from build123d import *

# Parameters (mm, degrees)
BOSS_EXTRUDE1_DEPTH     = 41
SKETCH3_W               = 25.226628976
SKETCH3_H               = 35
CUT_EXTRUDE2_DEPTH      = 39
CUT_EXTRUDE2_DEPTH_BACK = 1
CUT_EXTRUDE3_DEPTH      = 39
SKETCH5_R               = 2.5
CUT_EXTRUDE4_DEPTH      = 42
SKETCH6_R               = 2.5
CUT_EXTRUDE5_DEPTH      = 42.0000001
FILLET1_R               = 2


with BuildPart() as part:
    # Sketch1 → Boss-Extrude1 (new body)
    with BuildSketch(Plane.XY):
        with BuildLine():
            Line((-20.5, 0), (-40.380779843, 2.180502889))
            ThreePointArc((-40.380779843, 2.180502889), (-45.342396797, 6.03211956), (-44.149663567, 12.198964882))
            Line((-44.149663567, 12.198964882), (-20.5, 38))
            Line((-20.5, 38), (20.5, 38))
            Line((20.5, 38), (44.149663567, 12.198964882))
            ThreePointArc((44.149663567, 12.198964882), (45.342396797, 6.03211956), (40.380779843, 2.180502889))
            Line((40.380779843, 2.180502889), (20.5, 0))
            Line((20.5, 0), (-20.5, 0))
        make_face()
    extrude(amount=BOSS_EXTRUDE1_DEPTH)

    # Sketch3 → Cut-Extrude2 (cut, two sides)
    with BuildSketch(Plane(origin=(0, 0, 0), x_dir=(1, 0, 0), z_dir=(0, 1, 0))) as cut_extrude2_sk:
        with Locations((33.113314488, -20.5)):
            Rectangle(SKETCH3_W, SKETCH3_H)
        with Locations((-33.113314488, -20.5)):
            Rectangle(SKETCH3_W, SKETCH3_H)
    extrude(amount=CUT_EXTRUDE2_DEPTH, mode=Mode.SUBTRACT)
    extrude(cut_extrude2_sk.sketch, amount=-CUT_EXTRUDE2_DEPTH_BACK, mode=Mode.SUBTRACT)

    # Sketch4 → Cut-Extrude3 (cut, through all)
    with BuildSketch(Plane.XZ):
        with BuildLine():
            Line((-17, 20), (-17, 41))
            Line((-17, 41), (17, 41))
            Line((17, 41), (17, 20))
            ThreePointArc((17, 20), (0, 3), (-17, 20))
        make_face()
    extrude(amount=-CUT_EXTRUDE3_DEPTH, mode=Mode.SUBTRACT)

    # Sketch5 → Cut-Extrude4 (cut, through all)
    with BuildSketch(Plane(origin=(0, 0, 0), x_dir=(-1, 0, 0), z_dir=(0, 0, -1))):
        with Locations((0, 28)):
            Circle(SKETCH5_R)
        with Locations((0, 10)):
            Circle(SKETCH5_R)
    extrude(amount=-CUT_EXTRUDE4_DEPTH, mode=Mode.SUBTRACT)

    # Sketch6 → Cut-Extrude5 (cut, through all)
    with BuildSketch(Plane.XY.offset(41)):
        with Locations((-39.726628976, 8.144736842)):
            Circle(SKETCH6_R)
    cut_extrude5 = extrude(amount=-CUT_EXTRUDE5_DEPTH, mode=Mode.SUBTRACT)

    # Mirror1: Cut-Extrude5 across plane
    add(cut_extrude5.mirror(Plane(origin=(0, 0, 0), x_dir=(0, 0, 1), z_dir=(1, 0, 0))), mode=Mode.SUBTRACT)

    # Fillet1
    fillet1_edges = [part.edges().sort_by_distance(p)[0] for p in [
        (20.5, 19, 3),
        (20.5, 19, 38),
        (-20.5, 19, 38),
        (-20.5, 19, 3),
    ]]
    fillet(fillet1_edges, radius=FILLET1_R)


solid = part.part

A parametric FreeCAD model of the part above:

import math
import FreeCAD as App
import Part
import Sketcher
Q = App.Units.Quantity


def edges_at(feature, points):
    """Names of the edges that pass closest to the given points."""
    edges = feature.Shape.Edges
    near = lambda p: min(range(len(edges)), key=lambda i: edges[i].distToShape(Part.Vertex(*p))[0])
    return sorted({f"Edge{near(p) + 1}" for p in points})

doc = App.newDocument("Part")
body = doc.addObject("PartDesign::Body", "Body")

# Sketch on XY plane
sketch1 = body.newObject("Sketcher::SketchObject", "Sketch")
sketch1.AttachmentSupport = (doc.getObject("XY_Plane"), [""])
sketch1.MapMode = "FlatFace"
sketch1.addGeometry(Part.LineSegment(App.Vector(-40, 2, 0), App.Vector(-20, 0, 0)), False)
sketch1.addGeometry(Part.LineSegment(App.Vector(-20, 0, 0), App.Vector(20, 0, 0)), False)
sketch1.addGeometry(Part.LineSegment(App.Vector(20, 0, 0), App.Vector(40, 2, 0)), False)
sketch1.addGeometry(Part.ArcOfCircle(Part.Circle(App.Vector(40, 8, 0), App.Vector(0, 0, 1), 6), math.radians(-84), math.radians(43)), False)
sketch1.addGeometry(Part.LineSegment(App.Vector(44, 12, 0), App.Vector(20, 38, 0)), False)
sketch1.addGeometry(Part.LineSegment(App.Vector(20, 38, 0), App.Vector(-20, 38, 0)), False)
sketch1.addGeometry(Part.LineSegment(App.Vector(-20, 38, 0), App.Vector(-44, 12, 0)), False)
sketch1.addGeometry(Part.ArcOfCircle(Part.Circle(App.Vector(-40, 8, 0), App.Vector(0, 0, 1), 6), math.radians(137), math.radians(264)), False)
sketch1.addConstraint(Sketcher.Constraint("Coincident", 0, 2, 1, 1))
sketch1.addConstraint(Sketcher.Constraint("Coincident", 1, 2, 2, 1))
sketch1.addConstraint(Sketcher.Constraint("Tangent", 2, 2, 3, 1))
sketch1.addConstraint(Sketcher.Constraint("Tangent", 3, 2, 4, 1))
sketch1.addConstraint(Sketcher.Constraint("Coincident", 4, 2, 5, 1))
sketch1.addConstraint(Sketcher.Constraint("Coincident", 5, 2, 6, 1))
sketch1.addConstraint(Sketcher.Constraint("Tangent", 6, 2, 7, 1))
sketch1.addConstraint(Sketcher.Constraint("Tangent", 7, 2, 0, 1))
sketch1.addConstraint(Sketcher.Constraint("Horizontal", 1))
sketch1.addConstraint(Sketcher.Constraint("Horizontal", 5))
sketch1.addConstraint(Sketcher.Constraint("Equal", 3, 7))
sketch1.addConstraint(Sketcher.Constraint("Symmetric", 0, 2, 1, 2, -1, 1))
sketch1.addConstraint(Sketcher.Constraint("Symmetric", 3, 3, 7, 3, -2))
sketch1.addConstraint(Sketcher.Constraint("Horizontal", 3, 2, 6, 2))
sketch1.addConstraint(Sketcher.Constraint("Vertical", 1, 2, 4, 2))
sketch1.addConstraint(Sketcher.Constraint("Radius", 3, Q("6 mm")))
sketch1.addConstraint(Sketcher.Constraint("DistanceX", 1, 1, 1, 2, Q("41 mm")))
sketch1.addConstraint(Sketcher.Constraint("Distance", 0, Q("20 mm")))
sketch1.addConstraint(Sketcher.Constraint("Distance", 4, Q("35 mm")))
sketch1.addConstraint(Sketcher.Constraint("DistanceY", -1, 1, 4, 2, Q("38 mm")))
pad1 = body.newObject("PartDesign::Pad", "Pad")
pad1.Profile = sketch1
pad1.Length = 41

# Sketch on XZ plane
sketch2 = body.newObject("Sketcher::SketchObject", "Sketch001")
sketch2.AttachmentSupport = (doc.getObject("XZ_Plane"), [""])
sketch2.MapMode = "FlatFace"
sketch2.addGeometry(Part.LineSegment(App.Vector(20, 3, 0), App.Vector(20, 38, 0)), False)
sketch2.addGeometry(Part.LineSegment(App.Vector(20, 38, 0), App.Vector(46, 38, 0)), False)
sketch2.addGeometry(Part.LineSegment(App.Vector(46, 38, 0), App.Vector(46, 3, 0)), False)
sketch2.addGeometry(Part.LineSegment(App.Vector(46, 3, 0), App.Vector(20, 3, 0)), False)
sketch2.addGeometry(Part.LineSegment(App.Vector(-46, 3, 0), App.Vector(-46, 38, 0)), False)
sketch2.addGeometry(Part.LineSegment(App.Vector(-46, 38, 0), App.Vector(-20, 38, 0)), False)
sketch2.addGeometry(Part.LineSegment(App.Vector(-20, 38, 0), App.Vector(-20, 3, 0)), False)
sketch2.addGeometry(Part.LineSegment(App.Vector(-20, 3, 0), App.Vector(-46, 3, 0)), False)
sketch2.addConstraint(Sketcher.Constraint("Coincident", 0, 2, 1, 1))
sketch2.addConstraint(Sketcher.Constraint("Coincident", 1, 2, 2, 1))
sketch2.addConstraint(Sketcher.Constraint("Coincident", 2, 2, 3, 1))
sketch2.addConstraint(Sketcher.Constraint("Coincident", 3, 2, 0, 1))
sketch2.addConstraint(Sketcher.Constraint("Coincident", 4, 2, 5, 1))
sketch2.addConstraint(Sketcher.Constraint("Coincident", 5, 2, 6, 1))
sketch2.addConstraint(Sketcher.Constraint("Coincident", 6, 2, 7, 1))
sketch2.addConstraint(Sketcher.Constraint("Coincident", 7, 2, 4, 1))
sketch2.addConstraint(Sketcher.Constraint("Vertical", 0))
sketch2.addConstraint(Sketcher.Constraint("Horizontal", 1))
sketch2.addConstraint(Sketcher.Constraint("Vertical", 2))
sketch2.addConstraint(Sketcher.Constraint("Horizontal", 3))
sketch2.addConstraint(Sketcher.Constraint("Vertical", 4))
sketch2.addConstraint(Sketcher.Constraint("Horizontal", 5))
sketch2.addConstraint(Sketcher.Constraint("Vertical", 6))
sketch2.addConstraint(Sketcher.Constraint("Horizontal", 7))
sketch2.addConstraint(Sketcher.Constraint("Symmetric", 1, 2, 4, 2, -2))
sketch2.addConstraint(Sketcher.Constraint("Symmetric", 3, 2, 6, 2, -2))
sketch2.addConstraint(Sketcher.Constraint("DistanceY", 0, 1, 0, 2, Q("35 mm")))
sketch2.addConstraint(Sketcher.Constraint("DistanceY", -1, 1, 0, 2, Q("38 mm")))
sketch2.addConstraint(Sketcher.Constraint("DistanceX", 5, 2, 0, 2, Q("41 mm")))
sketch2.addConstraint(Sketcher.Constraint("DistanceX", 1, 1, 1, 2, Q("25.226629 mm")))
pocket1 = body.newObject("PartDesign::Pocket", "Pocket")
pocket1.Profile = sketch2
pocket1.Type = "ThroughAll"
pocket1.Midplane = True

# Sketch on XZ plane
sketch3 = body.newObject("Sketcher::SketchObject", "Sketch002")
sketch3.AttachmentSupport = (doc.getObject("XZ_Plane"), [""])
sketch3.MapMode = "FlatFace"
sketch3.addGeometry(Part.LineSegment(App.Vector(-17, 41, 0), App.Vector(-17, 20, 0)), False)
sketch3.addGeometry(Part.ArcOfCircle(Part.Circle(App.Vector(0, 20, 0), App.Vector(0, 0, 1), 17), math.radians(180), math.radians(360)), False)
sketch3.addGeometry(Part.LineSegment(App.Vector(17, 20, 0), App.Vector(17, 41, 0)), False)
sketch3.addGeometry(Part.LineSegment(App.Vector(17, 41, 0), App.Vector(-17, 41, 0)), False)
sketch3.addConstraint(Sketcher.Constraint("Tangent", 0, 2, 1, 1))
sketch3.addConstraint(Sketcher.Constraint("Tangent", 1, 2, 2, 1))
sketch3.addConstraint(Sketcher.Constraint("Coincident", 2, 2, 3, 1))
sketch3.addConstraint(Sketcher.Constraint("Coincident", 3, 2, 0, 1))
sketch3.addConstraint(Sketcher.Constraint("Vertical", 0))
sketch3.addConstraint(Sketcher.Constraint("Vertical", 2))
sketch3.addConstraint(Sketcher.Constraint("Horizontal", 3))
sketch3.addConstraint(Sketcher.Constraint("PointOnObject", 1, 3, -2))
sketch3.addConstraint(Sketcher.Constraint("Radius", 1, Q("17 mm")))
sketch3.addConstraint(Sketcher.Constraint("DistanceY", 0, 2, 0, 1, Q("21 mm")))
sketch3.addConstraint(Sketcher.Constraint("DistanceY", -1, 1, 1, 3, Q("20 mm")))
pocket2 = body.newObject("PartDesign::Pocket", "Pocket001")
pocket2.Profile = sketch3
pocket2.Type = "ThroughAll"

# Sketch on XY plane
sketch4 = body.newObject("Sketcher::SketchObject", "Sketch003")
sketch4.AttachmentSupport = (doc.getObject("XY_Plane"), [""])
sketch4.MapMode = "FlatFace"
sketch4.addGeometry(Part.Circle(App.Vector(0, 28, 0), App.Vector(0, 0, 1), 2.5), False)
sketch4.addGeometry(Part.Circle(App.Vector(0, 10, 0), App.Vector(0, 0, 1), 2.5), False)
sketch4.addConstraint(Sketcher.Constraint("Equal", 0, 1))
sketch4.addConstraint(Sketcher.Constraint("PointOnObject", 0, 3, -2))
sketch4.addConstraint(Sketcher.Constraint("PointOnObject", 1, 3, -2))
sketch4.addConstraint(Sketcher.Constraint("Diameter", 0, Q("5 mm")))
sketch4.addConstraint(Sketcher.Constraint("DistanceY", -1, 1, 0, 3, Q("28 mm")))
sketch4.addConstraint(Sketcher.Constraint("DistanceY", -1, 1, 1, 3, Q("10 mm")))
pocket3 = body.newObject("PartDesign::Pocket", "Pocket002")
pocket3.Profile = sketch4
pocket3.Type = "ThroughAll"
pocket3.Reversed = True

# Sketch on XY plane
sketch5 = body.newObject("Sketcher::SketchObject", "Sketch004")
sketch5.AttachmentSupport = (doc.getObject("XY_Plane"), [""])
sketch5.MapMode = "FlatFace"
sketch5.AttachmentOffset = App.Placement(App.Vector(0, 0, 41), App.Rotation())
sketch5.addGeometry(Part.Circle(App.Vector(-39.7, 8.1, 0), App.Vector(0, 0, 1), 2.5), False)
sketch5.addConstraint(Sketcher.Constraint("Diameter", 0, Q("5 mm")))
sketch5.addConstraint(Sketcher.Constraint("DistanceX", 0, 3, -1, 1, Q("39.726629 mm")))
sketch5.addConstraint(Sketcher.Constraint("DistanceY", -1, 1, 0, 3, Q("8.144737 mm")))
pocket4 = body.newObject("PartDesign::Pocket", "Pocket003")
pocket4.Profile = sketch5
pocket4.Type = "ThroughAll"
doc.recompute()

mirrored = body.newObject("PartDesign::Mirrored", "Mirrored")
mirrored.Originals = [pocket4]
mirrored.MirrorPlane = (doc.getObject("YZ_Plane"), [""])
body.Tip = mirrored
doc.recompute()

fillet = body.newObject("PartDesign::Fillet", "Fillet")
fillet.Base = (mirrored, edges_at(mirrored, [
    (20.5, 19, 3),
    (20.5, 19, 38),
    (-20.5, 19, 38),
    (-20.5, 19, 3),
]))
fillet.Radius = 2

doc.recompute()
